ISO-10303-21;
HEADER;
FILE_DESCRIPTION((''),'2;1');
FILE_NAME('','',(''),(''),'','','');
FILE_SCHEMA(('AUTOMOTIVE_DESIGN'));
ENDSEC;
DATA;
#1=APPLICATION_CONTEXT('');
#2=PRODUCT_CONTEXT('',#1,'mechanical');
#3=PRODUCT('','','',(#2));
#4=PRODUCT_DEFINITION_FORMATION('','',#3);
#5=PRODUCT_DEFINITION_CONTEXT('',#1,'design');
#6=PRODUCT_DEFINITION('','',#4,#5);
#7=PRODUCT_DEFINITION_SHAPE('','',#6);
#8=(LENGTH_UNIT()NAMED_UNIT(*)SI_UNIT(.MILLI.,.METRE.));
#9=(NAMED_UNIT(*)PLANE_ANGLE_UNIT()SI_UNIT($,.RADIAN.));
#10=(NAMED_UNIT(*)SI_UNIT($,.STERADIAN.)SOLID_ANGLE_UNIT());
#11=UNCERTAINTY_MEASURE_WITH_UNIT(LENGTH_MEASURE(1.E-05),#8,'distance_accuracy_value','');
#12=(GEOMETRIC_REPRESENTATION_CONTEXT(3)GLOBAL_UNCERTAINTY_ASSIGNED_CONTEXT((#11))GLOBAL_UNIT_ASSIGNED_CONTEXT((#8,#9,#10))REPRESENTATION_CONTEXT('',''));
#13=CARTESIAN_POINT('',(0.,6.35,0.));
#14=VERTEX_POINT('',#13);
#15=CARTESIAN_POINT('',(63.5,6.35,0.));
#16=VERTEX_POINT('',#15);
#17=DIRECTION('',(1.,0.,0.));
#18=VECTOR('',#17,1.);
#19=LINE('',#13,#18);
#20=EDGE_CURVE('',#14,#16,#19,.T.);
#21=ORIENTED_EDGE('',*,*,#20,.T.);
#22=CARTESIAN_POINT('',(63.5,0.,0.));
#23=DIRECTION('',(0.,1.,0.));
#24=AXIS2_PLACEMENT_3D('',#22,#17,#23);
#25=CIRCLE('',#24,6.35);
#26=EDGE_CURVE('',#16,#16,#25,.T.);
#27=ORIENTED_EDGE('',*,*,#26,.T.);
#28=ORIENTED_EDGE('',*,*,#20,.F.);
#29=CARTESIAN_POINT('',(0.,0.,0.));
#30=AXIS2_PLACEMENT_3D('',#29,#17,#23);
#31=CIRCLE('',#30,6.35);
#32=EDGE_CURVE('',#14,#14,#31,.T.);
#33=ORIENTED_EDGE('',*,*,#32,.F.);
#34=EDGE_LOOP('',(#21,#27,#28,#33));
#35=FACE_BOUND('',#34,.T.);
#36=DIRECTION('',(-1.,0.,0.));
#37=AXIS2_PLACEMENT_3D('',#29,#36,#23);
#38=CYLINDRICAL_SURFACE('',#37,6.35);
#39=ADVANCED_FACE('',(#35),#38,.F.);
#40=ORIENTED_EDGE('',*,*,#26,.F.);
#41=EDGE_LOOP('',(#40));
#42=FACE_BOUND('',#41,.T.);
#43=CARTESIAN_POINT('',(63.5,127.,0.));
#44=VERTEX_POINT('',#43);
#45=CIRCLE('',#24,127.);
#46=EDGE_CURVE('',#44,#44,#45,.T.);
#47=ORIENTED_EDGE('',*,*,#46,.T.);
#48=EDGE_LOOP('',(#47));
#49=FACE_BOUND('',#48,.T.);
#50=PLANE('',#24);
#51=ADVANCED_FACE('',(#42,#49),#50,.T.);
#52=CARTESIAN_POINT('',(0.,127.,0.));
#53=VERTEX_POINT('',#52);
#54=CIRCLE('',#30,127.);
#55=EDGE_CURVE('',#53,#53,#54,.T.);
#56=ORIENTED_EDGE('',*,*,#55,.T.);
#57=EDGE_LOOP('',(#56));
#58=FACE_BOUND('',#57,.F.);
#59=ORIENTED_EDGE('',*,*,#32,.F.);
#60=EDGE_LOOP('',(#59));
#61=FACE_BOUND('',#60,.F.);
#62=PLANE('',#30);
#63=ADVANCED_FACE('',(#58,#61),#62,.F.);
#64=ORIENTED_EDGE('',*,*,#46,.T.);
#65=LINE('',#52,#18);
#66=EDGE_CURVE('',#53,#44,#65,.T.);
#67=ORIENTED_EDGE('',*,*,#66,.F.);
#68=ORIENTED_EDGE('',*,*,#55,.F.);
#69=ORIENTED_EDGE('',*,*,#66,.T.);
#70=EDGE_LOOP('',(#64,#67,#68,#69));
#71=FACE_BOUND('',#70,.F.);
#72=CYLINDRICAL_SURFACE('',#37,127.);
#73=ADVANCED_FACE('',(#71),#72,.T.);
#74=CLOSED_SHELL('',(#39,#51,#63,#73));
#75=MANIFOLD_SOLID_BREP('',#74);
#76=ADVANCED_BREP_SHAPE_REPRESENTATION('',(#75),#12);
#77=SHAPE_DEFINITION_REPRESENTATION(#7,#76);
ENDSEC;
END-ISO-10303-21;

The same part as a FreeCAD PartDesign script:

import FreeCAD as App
import Part
import Sketcher
Q = App.Units.Quantity

doc = App.newDocument("Part")
params = doc.addObject("Spreadsheet::Sheet", "Params")
for row, (alias, value) in enumerate([
    ("sketch1_diameter", "10 in"),
    ("sketch1_diameter2", "0.5 in"),
    ("pad1_length", "2.5 in"),
], start=1):
    params.set(f"A{row}", alias)
    params.set(f"B{row}", "=" + value)
    params.setAlias(f"B{row}", alias)

body = doc.addObject("PartDesign::Body", "Body")

sketch1 = body.newObject("Sketcher::SketchObject", "Sketch")
sketch1.AttachmentSupport = (doc.getObject("YZ_Plane"), [""])
sketch1.MapMode = "FlatFace"
sketch1.addGeometry(Part.Circle(App.Vector(0, 0, 0), App.Vector(0, 0, 1), 127), False)
sketch1.addGeometry(Part.Circle(App.Vector(0, 0, 0), App.Vector(0, 0, 1), 6.35), False)
sketch1.addConstraint(Sketcher.Constraint("Coincident", 0, 3, -1, 1))
sketch1.addConstraint(Sketcher.Constraint("Coincident", 1, 3, -1, 1))
sketch1.addConstraint(Sketcher.Constraint("Diameter", 0, Q("10 in")))
sketch1.addConstraint(Sketcher.Constraint("Diameter", 1, Q("0.5 in")))
sketch1.setExpression("Constraints[2]", "Params.sketch1_diameter")
sketch1.setExpression("Constraints[3]", "Params.sketch1_diameter2")
pad1 = body.newObject("PartDesign::Pad", "Pad")
pad1.Profile = sketch1
pad1.setExpression("Length", "Params.pad1_length")

doc.recompute()
